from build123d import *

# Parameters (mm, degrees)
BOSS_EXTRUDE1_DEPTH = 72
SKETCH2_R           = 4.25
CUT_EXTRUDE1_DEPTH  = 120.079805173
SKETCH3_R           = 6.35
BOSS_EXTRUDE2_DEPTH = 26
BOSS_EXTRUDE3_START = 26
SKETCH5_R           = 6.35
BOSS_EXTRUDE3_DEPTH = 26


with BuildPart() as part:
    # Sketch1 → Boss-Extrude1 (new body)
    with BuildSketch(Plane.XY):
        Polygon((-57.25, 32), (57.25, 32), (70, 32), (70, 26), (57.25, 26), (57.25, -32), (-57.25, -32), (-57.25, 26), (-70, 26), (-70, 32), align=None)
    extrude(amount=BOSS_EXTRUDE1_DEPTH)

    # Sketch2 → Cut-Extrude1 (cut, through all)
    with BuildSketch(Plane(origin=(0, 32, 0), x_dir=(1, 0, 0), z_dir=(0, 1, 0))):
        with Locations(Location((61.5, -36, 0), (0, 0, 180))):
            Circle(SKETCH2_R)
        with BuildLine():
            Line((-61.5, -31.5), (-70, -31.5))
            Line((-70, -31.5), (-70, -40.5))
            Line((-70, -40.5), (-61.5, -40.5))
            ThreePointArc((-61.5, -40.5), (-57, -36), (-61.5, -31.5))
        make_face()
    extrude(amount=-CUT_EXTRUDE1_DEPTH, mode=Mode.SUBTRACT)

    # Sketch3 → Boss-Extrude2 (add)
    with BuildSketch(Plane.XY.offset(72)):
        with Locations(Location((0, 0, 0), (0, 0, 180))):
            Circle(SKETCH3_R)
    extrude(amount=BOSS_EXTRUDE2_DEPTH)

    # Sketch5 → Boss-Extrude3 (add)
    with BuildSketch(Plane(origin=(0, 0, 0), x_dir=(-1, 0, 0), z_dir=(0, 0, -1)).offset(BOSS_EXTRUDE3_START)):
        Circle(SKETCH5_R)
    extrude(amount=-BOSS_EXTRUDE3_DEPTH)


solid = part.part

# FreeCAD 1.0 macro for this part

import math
import FreeCAD as App
import Part
import Sketcher

V = App.Vector
Q = App.Units.Quantity

doc = App.newDocument("Part")
body = doc.addObject("PartDesign::Body", "Body")

# Sketch on XY plane
sketch1 = body.newObject("Sketcher::SketchObject", "Sketch")
sketch1.AttachmentSupport = (doc.getObject("XY_Plane"), [""])
sketch1.MapMode = "FlatFace"
sketch1.addGeometry(Part.LineSegment(V(70, 32, 0), V(-70, 32, 0)), False)
sketch1.addGeometry(Part.LineSegment(V(-70, 32, 0), V(-70, 26, 0)), False)
sketch1.addGeometry(Part.LineSegment(V(-70, 26, 0), V(-57, 26, 0)), False)
sketch1.addGeometry(Part.LineSegment(V(-57, 26, 0), V(-57, -32, 0)), False)
sketch1.addGeometry(Part.LineSegment(V(-57, -32, 0), V(57, -32, 0)), False)
sketch1.addGeometry(Part.LineSegment(V(57, -32, 0), V(57, 26, 0)), False)
sketch1.addGeometry(Part.LineSegment(V(57, 26, 0), V(70, 26, 0)), False)
sketch1.addGeometry(Part.LineSegment(V(70, 26, 0), V(70, 32, 0)), False)
sketch1.addConstraint(Sketcher.Constraint("Coincident", 0, 2, 1, 1))
sketch1.addConstraint(Sketcher.Constraint("Coincident", 1, 2, 2, 1))
sketch1.addConstraint(Sketcher.Constraint("Coincident", 2, 2, 3, 1))
sketch1.addConstraint(Sketcher.Constraint("Coincident", 3, 2, 4, 1))
sketch1.addConstraint(Sketcher.Constraint("Coincident", 4, 2, 5, 1))
sketch1.addConstraint(Sketcher.Constraint("Coincident", 5, 2, 6, 1))
sketch1.addConstraint(Sketcher.Constraint("Coincident", 6, 2, 7, 1))
sketch1.addConstraint(Sketcher.Constraint("Coincident", 7, 2, 0, 1))
sketch1.addConstraint(Sketcher.Constraint("Horizontal", 0))
sketch1.addConstraint(Sketcher.Constraint("Vertical", 1))
sketch1.addConstraint(Sketcher.Constraint("Horizontal", 2))
sketch1.addConstraint(Sketcher.Constraint("Vertical", 3))
sketch1.addConstraint(Sketcher.Constraint("Horizontal", 4))
sketch1.addConstraint(Sketcher.Constraint("Vertical", 5))
sketch1.addConstraint(Sketcher.Constraint("Horizontal", 6))
sketch1.addConstraint(Sketcher.Constraint("Vertical", 7))
sketch1.addConstraint(Sketcher.Constraint("Symmetric", 2, 2, 5, 2, -2))
sketch1.addConstraint(Sketcher.Constraint("Equal", 2, 6))
sketch1.addConstraint(Sketcher.Constraint("DistanceX", 0, 2, 0, 1, Q("140 mm")))
sketch1.addConstraint(Sketcher.Constraint("DistanceY", 1, 2, 1, 1, Q("6 mm")))
sketch1.addConstraint(Sketcher.Constraint("DistanceY", 3, 2, 3, 1, Q("58 mm")))
sketch1.addConstraint(Sketcher.Constraint("DistanceX", 4, 1, 4, 2, Q("114.5 mm")))
sketch1.addConstraint(Sketcher.Constraint("DistanceY", -1, 1, 0, 2, Q("32 mm")))
pad1 = body.newObject("PartDesign::Pad", "Pad")
pad1.Profile = sketch1
pad1.Length = 72

# Sketch on XZ plane
sketch2 = body.newObject("Sketcher::SketchObject", "Sketch001")
sketch2.AttachmentSupport = (doc.getObject("XZ_Plane"), [""])
sketch2.MapMode = "FlatFace"
sketch2.AttachmentOffset = App.Placement(V(0, 0, -32), App.Rotation())
sketch2.addGeometry(Part.Circle(V(61.5, 36, 0), V(0, 0, 1), 4.2), False)
sketch2.addGeometry(Part.LineSegment(V(-61.5, 31.5, 0), V(-70, 31.5, 0)), False)
sketch2.addGeometry(Part.LineSegment(V(-70, 31.5, 0), V(-70, 40.5, 0)), False)
sketch2.addGeometry(Part.LineSegment(V(-70, 40.5, 0), V(-61.5, 40.5, 0)), False)
sketch2.addGeometry(Part.ArcOfCircle(Part.Circle(V(-61.5, 36, 0), V(0, 0, 1), 4.5), math.radians(-90), math.radians(90)), False)
sketch2.addConstraint(Sketcher.Constraint("Coincident", 1, 2, 2, 1))
sketch2.addConstraint(Sketcher.Constraint("Coincident", 2, 2, 3, 1))
sketch2.addConstraint(Sketcher.Constraint("Tangent", 3, 2, 4, 2))
sketch2.addConstraint(Sketcher.Constraint("Tangent", 4, 1, 1, 1))
sketch2.addConstraint(Sketcher.Constraint("Horizontal", 1))
sketch2.addConstraint(Sketcher.Constraint("Vertical", 2))
sketch2.addConstraint(Sketcher.Constraint("Horizontal", 3))
sketch2.addConstraint(Sketcher.Constraint("Symmetric", 0, 3, 4, 3, -2))
sketch2.addConstraint(Sketcher.Constraint("Diameter", 0, Q("8.5 mm")))
sketch2.addConstraint(Sketcher.Constraint("Radius", 4, Q("4.5 mm")))
sketch2.addConstraint(Sketcher.Constraint("DistanceX", 1, 2, 1, 1, Q("8.5 mm")))
sketch2.addConstraint(Sketcher.Constraint("DistanceY", -1, 1, 0, 3, Q("36 mm")))
sketch2.addConstraint(Sketcher.Constraint("DistanceX", 1, 2, -1, 1, Q("70 mm")))
pocket1 = body.newObject("PartDesign::Pocket", "Pocket")
pocket1.Profile = sketch2
pocket1.Type = "ThroughAll"
pocket1.Reversed = True

# Sketch on XY plane
sketch3 = body.newObject("Sketcher::SketchObject", "Sketch002")
sketch3.AttachmentSupport = (doc.getObject("XY_Plane"), [""])
sketch3.MapMode = "FlatFace"
sketch3.AttachmentOffset = App.Placement(V(0, 0, 72), App.Rotation())
sketch3.addGeometry(Part.Circle(V(0, 0, 0), V(0, 0, 1), 6), False)
sketch3.addConstraint(Sketcher.Constraint("Coincident", 0, 3, -1, 1))
sketch3.addConstraint(Sketcher.Constraint("Diameter", 0, Q("12.7 mm")))
pad2 = body.newObject("PartDesign::Pad", "Pad001")
pad2.Profile = sketch3
pad2.Length = 26

# Sketch on XY plane
sketch4 = body.newObject("Sketcher::SketchObject", "Sketch003")
sketch4.AttachmentSupport = (doc.getObject("XY_Plane"), [""])
sketch4.MapMode = "FlatFace"
sketch4.AttachmentOffset = App.Placement(V(0, 0, -26), App.Rotation())
sketch4.addGeometry(Part.Circle(V(0, 0, 0), V(0, 0, 1), 6), False)
sketch4.addConstraint(Sketcher.Constraint("Coincident", 0, 3, -1, 1))
sketch4.addConstraint(Sketcher.Constraint("Diameter", 0, Q("12.7 mm")))
pad3 = body.newObject("PartDesign::Pad", "Pad002")
pad3.Profile = sketch4
pad3.Length = 26

doc.recompute()
